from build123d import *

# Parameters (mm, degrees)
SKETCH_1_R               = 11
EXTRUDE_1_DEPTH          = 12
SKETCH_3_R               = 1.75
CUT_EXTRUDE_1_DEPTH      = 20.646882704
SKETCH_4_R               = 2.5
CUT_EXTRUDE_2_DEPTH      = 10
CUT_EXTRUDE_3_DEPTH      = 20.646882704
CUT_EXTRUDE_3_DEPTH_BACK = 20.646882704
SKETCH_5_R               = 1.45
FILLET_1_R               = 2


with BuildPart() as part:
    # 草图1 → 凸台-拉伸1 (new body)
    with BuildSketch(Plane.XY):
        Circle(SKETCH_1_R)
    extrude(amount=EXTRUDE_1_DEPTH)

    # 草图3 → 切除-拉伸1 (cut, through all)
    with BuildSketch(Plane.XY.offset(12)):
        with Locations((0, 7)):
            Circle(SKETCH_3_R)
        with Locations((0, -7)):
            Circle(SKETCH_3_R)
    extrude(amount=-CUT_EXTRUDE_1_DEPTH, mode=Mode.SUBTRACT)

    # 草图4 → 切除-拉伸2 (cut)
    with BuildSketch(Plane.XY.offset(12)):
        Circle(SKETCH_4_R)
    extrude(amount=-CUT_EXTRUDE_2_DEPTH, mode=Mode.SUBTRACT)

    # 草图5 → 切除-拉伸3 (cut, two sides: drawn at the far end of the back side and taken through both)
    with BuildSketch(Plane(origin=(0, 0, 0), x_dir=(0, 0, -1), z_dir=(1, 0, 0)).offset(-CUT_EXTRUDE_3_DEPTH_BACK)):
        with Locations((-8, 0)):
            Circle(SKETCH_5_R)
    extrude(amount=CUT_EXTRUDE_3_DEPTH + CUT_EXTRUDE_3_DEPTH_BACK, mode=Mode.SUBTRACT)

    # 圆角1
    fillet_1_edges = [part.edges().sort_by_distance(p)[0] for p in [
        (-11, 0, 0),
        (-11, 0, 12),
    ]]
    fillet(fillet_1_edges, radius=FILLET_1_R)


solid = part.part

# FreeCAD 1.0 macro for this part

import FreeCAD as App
import Part
import Sketcher
Q = App.Units.Quantity


def edges_at(feature, points):
    """Names of the edges that pass closest to the given points."""
    edges = feature.Shape.Edges
    near = lambda p: min(range(len(edges)), key=lambda i: edges[i].distToShape(Part.Vertex(*p))[0])
    return sorted({f"Edge{near(p) + 1}" for p in points})

doc = App.newDocument("Part")
body = doc.addObject("PartDesign::Body", "Body")

# Sketch on XY plane
sketch1 = body.newObject("Sketcher::SketchObject", "Sketch")
sketch1.AttachmentSupport = (doc.getObject("XY_Plane"), [""])
sketch1.MapMode = "FlatFace"
sketch1.addGeometry(Part.Circle(App.Vector(0, 0, 0), App.Vector(0, 0, 1), 11), False)
sketch1.addConstraint([
    Sketcher.Constraint("Coincident", 0, 3, -1, 1),
    Sketcher.Constraint("Diameter", 0, Q("22 mm")),
])
pad1 = body.newObject("PartDesign::Pad", "Pad")
pad1.Profile = sketch1
pad1.Length = 12

# Sketch on XY plane
sketch2 = body.newObject("Sketcher::SketchObject", "Sketch001")
sketch2.AttachmentSupport = (doc.getObject("XY_Plane"), [""])
sketch2.MapMode = "FlatFace"
sketch2.AttachmentOffset = App.Placement(App.Vector(0, 0, 12), App.Rotation())
sketch2.addGeometry([
    Part.Circle(App.Vector(0, 7, 0), App.Vector(0, 0, 1), 1.8),
    Part.Circle(App.Vector(0, -7, 0), App.Vector(0, 0, 1), 1.8),
], False)
sketch2.addConstraint([
    Sketcher.Constraint("Equal", 0, 1),
    Sketcher.Constraint("Symmetric", 0, 3, 1, 3, -1, 1),
    Sketcher.Constraint("PointOnObject", 0, 3, -2),
    Sketcher.Constraint("Diameter", 0, Q("3.5 mm")),
    Sketcher.Constraint("DistanceY", -1, 1, 0, 3, Q("7 mm")),
])
pocket1 = body.newObject("PartDesign::Pocket", "Pocket")
pocket1.Profile = sketch2
pocket1.Type = "ThroughAll"

# Sketch on XY plane
sketch3 = body.newObject("Sketcher::SketchObject", "Sketch002")
sketch3.AttachmentSupport = (doc.getObject("XY_Plane"), [""])
sketch3.MapMode = "FlatFace"
sketch3.AttachmentOffset = App.Placement(App.Vector(0, 0, 12), App.Rotation())
sketch3.addGeometry(Part.Circle(App.Vector(0, 0, 0), App.Vector(0, 0, 1), 2.5), False)
sketch3.addConstraint([
    Sketcher.Constraint("Coincident", 0, 3, -1, 1),
    Sketcher.Constraint("Diameter", 0, Q("5 mm")),
])
pocket2 = body.newObject("PartDesign::Pocket", "Pocket001")
pocket2.Profile = sketch3
pocket2.Length = 10

# Sketch on YZ plane
sketch4 = body.newObject("Sketcher::SketchObject", "Sketch003")
sketch4.AttachmentSupport = (doc.getObject("YZ_Plane"), [""])
sketch4.MapMode = "FlatFace"
sketch4.addGeometry(Part.Circle(App.Vector(0, 8, 0), App.Vector(0, 0, 1), 1.4), False)
sketch4.addConstraint([
    Sketcher.Constraint("PointOnObject", 0, 3, -2),
    Sketcher.Constraint("Diameter", 0, Q("2.9 mm")),
    Sketcher.Constraint("DistanceY", -1, 1, 0, 3, Q("8 mm")),
])
pocket3 = body.newObject("PartDesign::Pocket", "Pocket002")
pocket3.Profile = sketch4
pocket3.Type = "ThroughAll"
pocket3.Midplane = True
doc.recompute()

fillet = body.newObject("PartDesign::Fillet", "Fillet")
fillet.Base = (pocket3, edges_at(pocket3, [(-11, 0, 0), (-11, 0, 12)]))
fillet.Radius = 2

doc.recompute()
